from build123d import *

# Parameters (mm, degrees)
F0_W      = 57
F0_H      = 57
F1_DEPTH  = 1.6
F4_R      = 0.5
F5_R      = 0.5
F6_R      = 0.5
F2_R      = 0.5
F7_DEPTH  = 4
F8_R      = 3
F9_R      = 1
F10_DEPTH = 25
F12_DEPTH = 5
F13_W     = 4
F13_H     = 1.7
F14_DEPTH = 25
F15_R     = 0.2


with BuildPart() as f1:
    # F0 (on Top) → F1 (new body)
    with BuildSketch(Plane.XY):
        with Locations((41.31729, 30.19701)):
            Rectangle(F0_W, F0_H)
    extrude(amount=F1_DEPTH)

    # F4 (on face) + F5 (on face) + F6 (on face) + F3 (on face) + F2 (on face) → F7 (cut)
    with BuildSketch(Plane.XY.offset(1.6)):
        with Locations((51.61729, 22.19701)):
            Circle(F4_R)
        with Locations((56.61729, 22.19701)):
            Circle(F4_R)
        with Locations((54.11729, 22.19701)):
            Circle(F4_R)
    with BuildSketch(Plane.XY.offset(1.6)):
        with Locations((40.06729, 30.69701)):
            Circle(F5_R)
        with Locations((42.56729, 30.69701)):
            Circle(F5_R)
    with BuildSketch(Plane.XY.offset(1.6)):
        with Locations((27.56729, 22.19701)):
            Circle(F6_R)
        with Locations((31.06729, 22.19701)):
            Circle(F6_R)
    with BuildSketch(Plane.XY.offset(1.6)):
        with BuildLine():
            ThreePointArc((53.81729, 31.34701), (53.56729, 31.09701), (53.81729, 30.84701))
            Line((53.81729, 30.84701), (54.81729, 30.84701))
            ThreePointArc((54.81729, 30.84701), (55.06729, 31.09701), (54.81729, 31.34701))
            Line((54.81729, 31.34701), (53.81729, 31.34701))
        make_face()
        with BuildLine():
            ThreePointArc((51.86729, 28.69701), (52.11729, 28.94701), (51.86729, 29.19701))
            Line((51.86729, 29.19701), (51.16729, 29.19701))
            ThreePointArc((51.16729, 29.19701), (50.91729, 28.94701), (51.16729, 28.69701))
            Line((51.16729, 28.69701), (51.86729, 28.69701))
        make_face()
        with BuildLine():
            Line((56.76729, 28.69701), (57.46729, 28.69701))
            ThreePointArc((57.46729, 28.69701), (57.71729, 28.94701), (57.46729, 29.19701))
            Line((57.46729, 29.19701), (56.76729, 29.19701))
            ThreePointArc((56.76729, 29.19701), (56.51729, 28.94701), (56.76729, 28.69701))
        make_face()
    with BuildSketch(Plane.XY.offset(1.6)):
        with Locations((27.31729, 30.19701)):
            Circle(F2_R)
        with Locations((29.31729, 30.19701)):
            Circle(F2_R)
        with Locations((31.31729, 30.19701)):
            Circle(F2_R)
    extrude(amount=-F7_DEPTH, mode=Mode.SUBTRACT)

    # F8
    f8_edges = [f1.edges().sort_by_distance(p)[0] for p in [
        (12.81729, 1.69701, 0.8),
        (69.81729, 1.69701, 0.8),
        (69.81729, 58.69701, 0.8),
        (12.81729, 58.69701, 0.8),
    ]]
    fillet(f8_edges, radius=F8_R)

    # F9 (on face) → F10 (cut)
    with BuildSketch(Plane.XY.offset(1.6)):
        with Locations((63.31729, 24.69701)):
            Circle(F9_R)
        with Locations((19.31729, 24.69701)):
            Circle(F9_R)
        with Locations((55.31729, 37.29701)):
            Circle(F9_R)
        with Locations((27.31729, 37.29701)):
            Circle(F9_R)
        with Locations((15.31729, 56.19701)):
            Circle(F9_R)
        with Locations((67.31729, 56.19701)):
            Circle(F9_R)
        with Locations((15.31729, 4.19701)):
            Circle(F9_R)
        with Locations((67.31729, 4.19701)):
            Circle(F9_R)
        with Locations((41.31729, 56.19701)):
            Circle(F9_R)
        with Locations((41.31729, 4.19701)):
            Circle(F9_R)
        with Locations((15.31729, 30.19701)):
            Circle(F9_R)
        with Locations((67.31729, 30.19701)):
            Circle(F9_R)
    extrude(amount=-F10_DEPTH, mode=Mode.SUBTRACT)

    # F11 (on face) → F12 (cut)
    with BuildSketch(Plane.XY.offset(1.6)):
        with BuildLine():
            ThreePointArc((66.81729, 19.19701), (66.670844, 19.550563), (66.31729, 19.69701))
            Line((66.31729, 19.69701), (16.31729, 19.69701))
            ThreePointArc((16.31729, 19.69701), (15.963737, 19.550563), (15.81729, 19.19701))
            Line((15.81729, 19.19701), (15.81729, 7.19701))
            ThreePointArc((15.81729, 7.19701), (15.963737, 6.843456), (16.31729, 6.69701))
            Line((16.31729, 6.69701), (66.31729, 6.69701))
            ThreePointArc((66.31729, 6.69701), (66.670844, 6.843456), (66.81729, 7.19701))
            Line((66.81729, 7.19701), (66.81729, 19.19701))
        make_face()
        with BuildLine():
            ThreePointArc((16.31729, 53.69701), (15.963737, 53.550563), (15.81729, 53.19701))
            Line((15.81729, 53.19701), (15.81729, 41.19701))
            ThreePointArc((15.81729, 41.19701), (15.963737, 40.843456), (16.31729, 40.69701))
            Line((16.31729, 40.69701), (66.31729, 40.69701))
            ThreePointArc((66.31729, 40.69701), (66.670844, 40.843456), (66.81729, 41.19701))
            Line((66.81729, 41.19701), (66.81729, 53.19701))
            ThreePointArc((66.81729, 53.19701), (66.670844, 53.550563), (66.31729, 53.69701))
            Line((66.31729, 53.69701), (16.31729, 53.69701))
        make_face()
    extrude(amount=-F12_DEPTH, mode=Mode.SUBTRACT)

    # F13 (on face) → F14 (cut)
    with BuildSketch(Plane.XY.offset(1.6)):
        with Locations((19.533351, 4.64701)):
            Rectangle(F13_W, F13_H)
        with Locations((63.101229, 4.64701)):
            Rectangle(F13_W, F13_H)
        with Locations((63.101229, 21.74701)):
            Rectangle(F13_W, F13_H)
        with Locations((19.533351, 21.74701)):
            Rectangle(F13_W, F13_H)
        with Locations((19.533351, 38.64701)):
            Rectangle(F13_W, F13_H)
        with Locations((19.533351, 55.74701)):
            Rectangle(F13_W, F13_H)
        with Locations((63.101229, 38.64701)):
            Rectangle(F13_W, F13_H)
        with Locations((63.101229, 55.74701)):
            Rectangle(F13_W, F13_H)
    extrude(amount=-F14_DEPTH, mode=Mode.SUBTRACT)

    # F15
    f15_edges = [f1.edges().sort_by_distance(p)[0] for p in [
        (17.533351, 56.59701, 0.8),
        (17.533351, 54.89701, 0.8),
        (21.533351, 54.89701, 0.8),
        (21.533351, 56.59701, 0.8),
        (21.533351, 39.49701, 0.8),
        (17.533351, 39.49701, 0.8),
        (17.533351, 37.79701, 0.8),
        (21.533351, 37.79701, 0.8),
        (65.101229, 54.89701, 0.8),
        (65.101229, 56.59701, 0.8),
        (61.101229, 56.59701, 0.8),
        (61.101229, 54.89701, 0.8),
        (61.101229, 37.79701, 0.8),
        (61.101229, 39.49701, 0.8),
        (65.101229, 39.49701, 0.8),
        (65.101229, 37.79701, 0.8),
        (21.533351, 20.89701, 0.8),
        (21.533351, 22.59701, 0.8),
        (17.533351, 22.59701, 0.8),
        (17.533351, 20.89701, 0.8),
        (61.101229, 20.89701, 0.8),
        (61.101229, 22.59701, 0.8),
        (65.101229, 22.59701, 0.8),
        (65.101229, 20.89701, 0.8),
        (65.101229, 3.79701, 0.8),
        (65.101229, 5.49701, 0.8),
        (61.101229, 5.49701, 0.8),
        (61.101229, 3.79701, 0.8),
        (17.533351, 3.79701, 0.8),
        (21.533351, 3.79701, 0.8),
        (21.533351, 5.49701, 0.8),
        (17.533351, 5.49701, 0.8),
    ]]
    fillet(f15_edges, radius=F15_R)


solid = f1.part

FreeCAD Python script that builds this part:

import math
import FreeCAD as App
import Part
import Sketcher

V = App.Vector


def edges_at(feature, points):
    """Names of the edges that pass closest to the given points."""
    edges = feature.Shape.Edges
    near = lambda p: min(range(len(edges)), key=lambda i: edges[i].distToShape(Part.Vertex(*p))[0])
    return sorted({f"Edge{near(p) + 1}" for p in points})


def add_polygon(sketch, points):
    """Adds a closed chain of lines whose ends are joined by coincident constraints."""
    first, n = sketch.GeometryCount, len(points)
    for a, b in zip(points, points[1:] + points[:1]):
        sketch.addGeometry(Part.LineSegment(App.Vector(*a, 0), App.Vector(*b, 0)), False)
    for i in range(n):
        sketch.addConstraint(Sketcher.Constraint("Coincident", first + i, 2, first + (i + 1) % n, 1))

doc = App.newDocument("Part")
params = doc.addObject("Spreadsheet::Sheet", "Params")
for row, (alias, value) in enumerate([
    ("sketch1_width", "57 mm"),
    ("pad1_length", "1.6 mm"),
    ("sketch2_diameter", "1 mm"),
    ("sketch2_width", "1 mm"),
    ("sketch2_radius", "0.25 mm"),
    ("sketch2_width2", "0.7 mm"),
    ("pocket1_length", "4 mm"),
    ("fillet_radius", "3 mm"),
    ("sketch3_diameter", "2 mm"),
    ("pocket2_length", "25 mm"),
    ("sketch4_radius", "0.5 mm"),
    ("sketch4_width", "50 mm"),
    ("sketch4_height", "12 mm"),
    ("pocket3_length", "5 mm"),
    ("sketch5_width", "4 mm"),
    ("sketch5_height", "1.7 mm"),
    ("pocket4_length", "25 mm"),
    ("fillet2_radius", "0.2 mm"),
], start=1):
    params.set(f"A{row}", alias)
    params.set(f"B{row}", "=" + value)
    params.setAlias(f"B{row}", alias)

body = doc.addObject("PartDesign::Body", "Body")

# Sketch on XY plane
sketch1 = body.newObject("Sketcher::SketchObject", "Sketch")
sketch1.AttachmentSupport = (doc.getObject("XY_Plane"), [""])
sketch1.MapMode = "FlatFace"
add_polygon(sketch1, [(13, 59), (13, 2), (70, 2), (70, 59)])  # lines 0-3
sketch1.addConstraint([
    Sketcher.Constraint("Vertical", 0),
    Sketcher.Constraint("Horizontal", 1),
    Sketcher.Constraint("Vertical", 2),
    Sketcher.Constraint("Horizontal", 3),
    Sketcher.Constraint("Equal", 3, 0),
    Sketcher.Constraint("DistanceX", 1, 1, 1, 2, 57.0),
    Sketcher.Constraint("DistanceX", -1, 1, 0, 2, 12.81729),
    Sketcher.Constraint("DistanceY", -1, 1, 0, 2, 1.69701),
])
sketch1.setExpression("Constraints[9]", "Params.sketch1_width")
pad1 = body.newObject("PartDesign::Pad", "Pad")
pad1.Profile = sketch1
pad1.setExpression("Length", "Params.pad1_length")

# Sketch on XY plane
sketch2 = body.newObject("Sketcher::SketchObject", "Sketch001")
sketch2.AttachmentSupport = (doc.getObject("XY_Plane"), [""])
sketch2.MapMode = "FlatFace"
sketch2.AttachmentOffset = App.Placement(V(0, 0, 1.6), App.Rotation())
sketch2.addGeometry([
    Part.Circle(V(51.62, 22.2, 0), V(0, 0, 1), 0.5),  # 0
    Part.Circle(V(56.62, 22.2, 0), V(0, 0, 1), 0.5),  # 1
    Part.Circle(V(54.12, 22.2, 0), V(0, 0, 1), 0.5),  # 2
    Part.Circle(V(40.07, 30.7, 0), V(0, 0, 1), 0.5),  # 3
    Part.Circle(V(42.57, 30.7, 0), V(0, 0, 1), 0.5),  # 4
    Part.Circle(V(27.57, 22.2, 0), V(0, 0, 1), 0.5),  # 5
    Part.Circle(V(31.07, 22.2, 0), V(0, 0, 1), 0.5),  # 6
    Part.ArcOfCircle(Part.Circle(V(53.82, 31.1, 0), V(0, 0, 1), 0.25), math.radians(90), math.radians(270)),  # 7
    Part.LineSegment(V(53.82, 30.85, 0), V(54.82, 30.85, 0)),  # 8
    Part.ArcOfCircle(Part.Circle(V(54.82, 31.1, 0), V(0, 0, 1), 0.25), math.radians(-90), math.radians(90)),  # 9
    Part.LineSegment(V(54.82, 31.35, 0), V(53.82, 31.35, 0)),  # 10
    Part.ArcOfCircle(Part.Circle(V(51.87, 28.95, 0), V(0, 0, 1), 0.25), math.radians(-90), math.radians(90)),  # 11
    Part.LineSegment(V(51.87, 29.2, 0), V(51.17, 29.2, 0)),  # 12
    Part.ArcOfCircle(Part.Circle(V(51.17, 28.95, 0), V(0, 0, 1), 0.25), math.radians(90), math.radians(270)),  # 13
    Part.LineSegment(V(51.17, 28.7, 0), V(51.87, 28.7, 0)),  # 14
    Part.LineSegment(V(56.77, 28.7, 0), V(57.47, 28.7, 0)),  # 15
    Part.ArcOfCircle(Part.Circle(V(57.47, 28.95, 0), V(0, 0, 1), 0.25), math.radians(-90), math.radians(90)),  # 16
    Part.LineSegment(V(57.47, 29.2, 0), V(56.77, 29.2, 0)),  # 17
    Part.ArcOfCircle(Part.Circle(V(56.77, 28.95, 0), V(0, 0, 1), 0.25), math.radians(90), math.radians(270)),  # 18
    Part.Circle(V(27.32, 30.2, 0), V(0, 0, 1), 0.5),  # 19
    Part.Circle(V(29.32, 30.2, 0), V(0, 0, 1), 0.5),  # 20
    Part.Circle(V(31.32, 30.2, 0), V(0, 0, 1), 0.5),  # 21
], False)
sketch2.addConstraint([
    Sketcher.Constraint("Tangent", 7, 2, 8, 1),
    Sketcher.Constraint("Tangent", 8, 2, 9, 1),
    Sketcher.Constraint("Tangent", 9, 2, 10, 1),
    Sketcher.Constraint("Tangent", 10, 2, 7, 1),
    Sketcher.Constraint("Tangent", 11, 2, 12, 1),
    Sketcher.Constraint("Tangent", 12, 2, 13, 1),
    Sketcher.Constraint("Tangent", 13, 2, 14, 1),
    Sketcher.Constraint("Tangent", 14, 2, 11, 1),
    Sketcher.Constraint("Tangent", 15, 2, 16, 1),
    Sketcher.Constraint("Tangent", 16, 2, 17, 1),
    Sketcher.Constraint("Tangent", 17, 2, 18, 1),
    Sketcher.Constraint("Tangent", 18, 2, 15, 1),
    Sketcher.Constraint("Horizontal", 8),
    Sketcher.Constraint("Horizontal", 10),
    Sketcher.Constraint("Horizontal", 12),
    Sketcher.Constraint("Horizontal", 14),
    Sketcher.Constraint("Horizontal", 15),
    Sketcher.Constraint("Horizontal", 17),
    Sketcher.Constraint("Equal", 0, 1),
    Sketcher.Constraint("Equal", 1, 2),
    Sketcher.Constraint("Equal", 2, 3),
    Sketcher.Constraint("Equal", 3, 4),
    Sketcher.Constraint("Equal", 4, 5),
    Sketcher.Constraint("Equal", 5, 6),
    Sketcher.Constraint("Equal", 9, 11),
    Sketcher.Constraint("Equal", 13, 16),
    Sketcher.Constraint("Equal", 6, 19),
    Sketcher.Constraint("Equal", 19, 20),
    Sketcher.Constraint("Equal", 20, 21),
    Sketcher.Constraint("Horizontal", 0, 3, 1, 3),
    Sketcher.Constraint("Horizontal", 1, 3, 2, 3),
    Sketcher.Constraint("Horizontal", 3, 3, 4, 3),
    Sketcher.Constraint("Horizontal", 2, 3, 5, 3),
    Sketcher.Constraint("Horizontal", 5, 3, 6, 3),
    Sketcher.Constraint("Horizontal", 13, 3, 16, 3),
    Sketcher.Constraint("Horizontal", 19, 3, 20, 3),
    Sketcher.Constraint("Horizontal", 20, 3, 21, 3),
    Sketcher.Constraint("Equal", 14, 15),
    Sketcher.Constraint("Diameter", 0, 1.0),
    Sketcher.Constraint("DistanceX", 8, 1, 8, 2, 1.0),
    Sketcher.Constraint("Radius", 7, 0.25),
    Sketcher.Constraint("DistanceX", 12, 2, 12, 1, 0.7),
    Sketcher.Constraint("DistanceX", 0, 3, 1, 3, 5.0),
    Sketcher.Constraint("DistanceX", 5, 3, 4, 3, 15.0),
    Sketcher.Constraint("DistanceX", 6, 3, 3, 3, 9.0),
    Sketcher.Constraint("DistanceY", 5, 3, 19, 3, 8.0),
    Sketcher.Constraint("DistanceX", 19, 3, 20, 3, 2.0),
    Sketcher.Constraint("DistanceX", 20, 3, 21, 3, 2.0),
    Sketcher.Constraint("DistanceX", 0, 3, 2, 3, 2.5),
    Sketcher.Constraint("DistanceY", 0, 3, 3, 3, 8.5),
    Sketcher.Constraint("DistanceX", 3, 3, 4, 3, 2.5),
    Sketcher.Constraint("DistanceX", 7, 3, 2, 3, 0.3),
    Sketcher.Constraint("DistanceY", 2, 3, 7, 3, 8.9),
    Sketcher.Constraint("DistanceX", 11, 3, 16, 3, 5.6),
    Sketcher.Constraint("DistanceY", 11, 3, 7, 2, 1.9),
    Sketcher.Constraint("DistanceX", 3, 3, 0, 3, 11.55),
    Sketcher.Constraint("DistanceX", 11, 3, 7, 3, 1.95),
    Sketcher.Constraint("DistanceX", 19, 3, 5, 3, 0.25),
    Sketcher.Constraint("DistanceX", -1, 1, 0, 3, 51.61729),
    Sketcher.Constraint("DistanceY", -1, 1, 0, 3, 22.19701),
])
sketch2.setExpression("Constraints[38]", "Params.sketch2_diameter")
sketch2.setExpression("Constraints[39]", "Params.sketch2_width")
sketch2.setExpression("Constraints[40]", "Params.sketch2_radius")
sketch2.setExpression("Constraints[41]", "Params.sketch2_width2")
pocket1 = body.newObject("PartDesign::Pocket", "Pocket")
pocket1.Profile = sketch2
pocket1.setExpression("Length", "Params.pocket1_length")
doc.recompute()

fillet = body.newObject("PartDesign::Fillet", "Fillet")
fillet.Base = (pocket1, edges_at(pocket1, [
    (12.817, 1.697, 0.8),
    (69.817, 1.697, 0.8),
    (69.817, 58.697, 0.8),
    (12.817, 58.697, 0.8),
]))
fillet.setExpression("Radius", "Params.fillet_radius")

# Sketch on XY plane
sketch3 = body.newObject("Sketcher::SketchObject", "Sketch002")
sketch3.AttachmentSupport = (doc.getObject("XY_Plane"), [""])
sketch3.MapMode = "FlatFace"
sketch3.AttachmentOffset = App.Placement(V(0, 0, 1.6), App.Rotation())
sketch3.addGeometry([
    Part.Circle(V(63.3, 24.7, 0), V(0, 0, 1), 1),  # 0
    Part.Circle(V(19.3, 24.7, 0), V(0, 0, 1), 1),  # 1
    Part.Circle(V(55.3, 37.3, 0), V(0, 0, 1), 1),  # 2
    Part.Circle(V(27.3, 37.3, 0), V(0, 0, 1), 1),  # 3
    Part.Circle(V(15.3, 56.2, 0), V(0, 0, 1), 1),  # 4
    Part.Circle(V(67.3, 56.2, 0), V(0, 0, 1), 1),  # 5
    Part.Circle(V(15.3, 4.2, 0), V(0, 0, 1), 1),  # 6
    Part.Circle(V(67.3, 4.2, 0), V(0, 0, 1), 1),  # 7
    Part.Circle(V(41.3, 56.2, 0), V(0, 0, 1), 1),  # 8
    Part.Circle(V(41.3, 4.2, 0), V(0, 0, 1), 1),  # 9
    Part.Circle(V(15.3, 30.2, 0), V(0, 0, 1), 1),  # 10
    Part.Circle(V(67.3, 30.2, 0), V(0, 0, 1), 1),  # 11
], False)
sketch3.addConstraint([
    Sketcher.Constraint("Equal", 0, 1),
    Sketcher.Constraint("Equal", 1, 2),
    Sketcher.Constraint("Equal", 2, 3),
    Sketcher.Constraint("Equal", 3, 4),
    Sketcher.Constraint("Equal", 4, 5),
    Sketcher.Constraint("Equal", 5, 6),
    Sketcher.Constraint("Equal", 6, 7),
    Sketcher.Constraint("Equal", 7, 8),
    Sketcher.Constraint("Equal", 8, 9),
    Sketcher.Constraint("Equal", 9, 10),
    Sketcher.Constraint("Equal", 10, 11),
    Sketcher.Constraint("Horizontal", 0, 3, 1, 3),
    Sketcher.Constraint("Horizontal", 2, 3, 3, 3),
    Sketcher.Constraint("Horizontal", 4, 3, 5, 3),
    Sketcher.Constraint("Horizontal", 6, 3, 7, 3),
    Sketcher.Constraint("Horizontal", 5, 3, 8, 3),
    Sketcher.Constraint("Horizontal", 7, 3, 9, 3),
    Sketcher.Constraint("Horizontal", 10, 3, 11, 3),
    Sketcher.Constraint("Vertical", 4, 3, 6, 3),
    Sketcher.Constraint("Vertical", 5, 3, 7, 3),
    Sketcher.Constraint("Vertical", 8, 3, 9, 3),
    Sketcher.Constraint("Vertical", 6, 3, 10, 3),
    Sketcher.Constraint("Vertical", 7, 3, 11, 3),
    Sketcher.Constraint("Diameter", 0, 2.0),
    Sketcher.Constraint("DistanceX", 1, 3, 0, 3, 44.0),
    Sketcher.Constraint("DistanceX", 2, 3, 0, 3, 8.0),
    Sketcher.Constraint("DistanceX", 1, 3, 3, 3, 8.0),
    Sketcher.Constraint("DistanceX", 4, 3, 3, 3, 12.0),
    Sketcher.Constraint("DistanceX", 2, 3, 5, 3, 12.0),
    Sketcher.Constraint("DistanceY", 6, 3, 4, 3, 52.0),
    Sketcher.Constraint("DistanceX", 8, 3, 2, 3, 14.0),
    Sketcher.Constraint("DistanceY", 10, 3, 4, 3, 26.0),
    Sketcher.Constraint("DistanceY", 0, 3, 2, 3, 12.6),
    Sketcher.Constraint("DistanceY", 3, 3, 4, 3, 18.9),
    Sketcher.Constraint("DistanceX", -1, 1, 0, 3, 63.31729),
    Sketcher.Constraint("DistanceY", -1, 1, 0, 3, 24.69701),
])
sketch3.setExpression("Constraints[23]", "Params.sketch3_diameter")
pocket2 = body.newObject("PartDesign::Pocket", "Pocket001")
pocket2.Profile = sketch3
pocket2.setExpression("Length", "Params.pocket2_length")

# Sketch on XY plane
sketch4 = body.newObject("Sketcher::SketchObject", "Sketch003")
sketch4.AttachmentSupport = (doc.getObject("XY_Plane"), [""])
sketch4.MapMode = "FlatFace"
sketch4.AttachmentOffset = App.Placement(V(0, 0, 1.6), App.Rotation())
sketch4.addGeometry([
    Part.ArcOfCircle(Part.Circle(V(66.32, 19.2, 0), V(0, 0, 1), 0.5), math.radians(0), math.radians(90)),  # 0
    Part.LineSegment(V(66.32, 19.7, 0), V(16.32, 19.7, 0)),  # 1
    Part.ArcOfCircle(Part.Circle(V(16.32, 19.2, 0), V(0, 0, 1), 0.5), math.radians(90), math.radians(180)),  # 2
    Part.LineSegment(V(15.82, 19.2, 0), V(15.82, 7.2, 0)),  # 3
    Part.ArcOfCircle(Part.Circle(V(16.32, 7.2, 0), V(0, 0, 1), 0.5), math.radians(180), math.radians(270)),  # 4
    Part.LineSegment(V(16.32, 6.7, 0), V(66.32, 6.7, 0)),  # 5
    Part.ArcOfCircle(Part.Circle(V(66.32, 7.2, 0), V(0, 0, 1), 0.5), math.radians(-90), math.radians(0)),  # 6
    Part.LineSegment(V(66.82, 7.2, 0), V(66.82, 19.2, 0)),  # 7
    Part.ArcOfCircle(Part.Circle(V(16.32, 53.2, 0), V(0, 0, 1), 0.5), math.radians(90), math.radians(180)),  # 8
    Part.LineSegment(V(15.82, 53.2, 0), V(15.82, 41.2, 0)),  # 9
    Part.ArcOfCircle(Part.Circle(V(16.32, 41.2, 0), V(0, 0, 1), 0.5), math.radians(180), math.radians(270)),  # 10
    Part.LineSegment(V(16.32, 40.7, 0), V(66.32, 40.7, 0)),  # 11
    Part.ArcOfCircle(Part.Circle(V(66.32, 41.2, 0), V(0, 0, 1), 0.5), math.radians(-90), math.radians(0)),  # 12
    Part.LineSegment(V(66.82, 41.2, 0), V(66.82, 53.2, 0)),  # 13
    Part.ArcOfCircle(Part.Circle(V(66.32, 53.2, 0), V(0, 0, 1), 0.5), math.radians(0), math.radians(90)),  # 14
    Part.LineSegment(V(66.32, 53.7, 0), V(16.32, 53.7, 0)),  # 15
], False)
sketch4.addConstraint([
    Sketcher.Constraint("Tangent", 0, 2, 1, 1),
    Sketcher.Constraint("Coincident", 1, 2, 2, 1),
    Sketcher.Constraint("Coincident", 2, 2, 3, 1),
    Sketcher.Constraint("Tangent", 3, 2, 4, 1),
    Sketcher.Constraint("Tangent", 4, 2, 5, 1),
    Sketcher.Constraint("Coincident", 5, 2, 6, 1),
    Sketcher.Constraint("Coincident", 6, 2, 7, 1),
    Sketcher.Constraint("Tangent", 7, 2, 0, 1),
    Sketcher.Constraint("Coincident", 8, 2, 9, 1),
    Sketcher.Constraint("Tangent", 9, 2, 10, 1),
    Sketcher.Constraint("Tangent", 10, 2, 11, 1),
    Sketcher.Constraint("Coincident", 11, 2, 12, 1),
    Sketcher.Constraint("Coincident", 12, 2, 13, 1),
    Sketcher.Constraint("Tangent", 13, 2, 14, 1),
    Sketcher.Constraint("Tangent", 14, 2, 15, 1),
    Sketcher.Constraint("Coincident", 15, 2, 8, 1),
    Sketcher.Constraint("Horizontal", 1),
    Sketcher.Constraint("Vertical", 3),
    Sketcher.Constraint("Horizontal", 5),
    Sketcher.Constraint("Vertical", 7),
    Sketcher.Constraint("Vertical", 9),
    Sketcher.Constraint("Horizontal", 11),
    Sketcher.Constraint("Vertical", 13),
    Sketcher.Constraint("Horizontal", 15),
    Sketcher.Constraint("Equal", 0, 2),
    Sketcher.Constraint("Equal", 2, 4),
    Sketcher.Constraint("Equal", 4, 6),
    Sketcher.Constraint("Equal", 4, 8),
    Sketcher.Constraint("Equal", 8, 10),
    Sketcher.Constraint("Equal", 10, 12),
    Sketcher.Constraint("Equal", 12, 14),
    Sketcher.Constraint("Horizontal", 0, 3, 2, 2),
    Sketcher.Constraint("Horizontal", 3, 2, 6, 2),
    Sketcher.Constraint("Horizontal", 14, 3, 8, 2),
    Sketcher.Constraint("Horizontal", 9, 2, 12, 2),
    Sketcher.Constraint("Vertical", 4, 3, 8, 3),
    Sketcher.Constraint("Vertical", 6, 3, 12, 3),
    Sketcher.Constraint("Vertical", 10, 3, 1, 2),
    Sketcher.Constraint("Vertical", 0, 2, 5, 2),
    Sketcher.Constraint("Vertical", 5, 2, 11, 2),
    Sketcher.Constraint("Vertical", 10, 2, 15, 2),
    Sketcher.Constraint("Equal", 7, 9),
    Sketcher.Constraint("Radius", 0, 0.5),
    Sketcher.Constraint("DistanceX", 1, 2, 1, 1, 50.0),
    Sketcher.Constraint("DistanceY", 3, 2, 3, 1, 12.0),
    Sketcher.Constraint("DistanceY", 2, 3, 8, 3, 34.0),
    Sketcher.Constraint("DistanceX", -1, 1, 0, 3, 66.31729),
    Sketcher.Constraint("DistanceY", -1, 1, 0, 3, 19.19701),
])
sketch4.setExpression("Constraints[42]", "Params.sketch4_radius")
sketch4.setExpression("Constraints[43]", "Params.sketch4_width")
sketch4.setExpression("Constraints[44]", "Params.sketch4_height")
pocket3 = body.newObject("PartDesign::Pocket", "Pocket002")
pocket3.Profile = sketch4
pocket3.setExpression("Length", "Params.pocket3_length")

# Sketch on XY plane
sketch5 = body.newObject("Sketcher::SketchObject", "Sketch004")
sketch5.AttachmentSupport = (doc.getObject("XY_Plane"), [""])
sketch5.MapMode = "FlatFace"
sketch5.AttachmentOffset = App.Placement(V(0, 0, 1.6), App.Rotation())
add_polygon(sketch5, [(17.5, 5.5), (17.5, 3.8), (21.5, 3.8), (21.5, 5.5)])  # lines 0-3
add_polygon(sketch5, [(61.1, 5.5), (61.1, 3.8), (65.1, 3.8), (65.1, 5.5)])  # lines 4-7
add_polygon(sketch5, [(61.1, 22.6), (61.1, 20.9), (65.1, 20.9), (65.1, 22.6)])  # lines 8-11
add_polygon(sketch5, [(17.5, 22.6), (17.5, 20.9), (21.5, 20.9), (21.5, 22.6)])  # lines 12-15
add_polygon(sketch5, [(17.5, 39.5), (17.5, 37.8), (21.5, 37.8), (21.5, 39.5)])  # lines 16-19
add_polygon(sketch5, [(17.5, 56.6), (17.5, 54.9), (21.5, 54.9), (21.5, 56.6)])  # lines 20-23
add_polygon(sketch5, [(61.1, 39.5), (61.1, 37.8), (65.1, 37.8), (65.1, 39.5)])  # lines 24-27
add_polygon(sketch5, [(61.1, 56.6), (61.1, 54.9), (65.1, 54.9), (65.1, 56.6)])  # lines 28-31
sketch5.addConstraint([
    Sketcher.Constraint("Vertical", 0),
    Sketcher.Constraint("Horizontal", 1),
    Sketcher.Constraint("Vertical", 2),
    Sketcher.Constraint("Horizontal", 3),
    Sketcher.Constraint("Vertical", 4),
    Sketcher.Constraint("Horizontal", 5),
    Sketcher.Constraint("Vertical", 6),
    Sketcher.Constraint("Horizontal", 7),
    Sketcher.Constraint("Vertical", 8),
    Sketcher.Constraint("Horizontal", 9),
    Sketcher.Constraint("Vertical", 10),
    Sketcher.Constraint("Horizontal", 11),
    Sketcher.Constraint("Vertical", 12),
    Sketcher.Constraint("Horizontal", 13),
    Sketcher.Constraint("Vertical", 14),
    Sketcher.Constraint("Horizontal", 15),
    Sketcher.Constraint("Vertical", 16),
    Sketcher.Constraint("Horizontal", 17),
    Sketcher.Constraint("Vertical", 18),
    Sketcher.Constraint("Horizontal", 19),
    Sketcher.Constraint("Vertical", 20),
    Sketcher.Constraint("Horizontal", 21),
    Sketcher.Constraint("Vertical", 22),
    Sketcher.Constraint("Horizontal", 23),
    Sketcher.Constraint("Vertical", 24),
    Sketcher.Constraint("Horizontal", 25),
    Sketcher.Constraint("Vertical", 26),
    Sketcher.Constraint("Horizontal", 27),
    Sketcher.Constraint("Vertical", 28),
    Sketcher.Constraint("Horizontal", 29),
    Sketcher.Constraint("Vertical", 30),
    Sketcher.Constraint("Horizontal", 31),
    Sketcher.Constraint("Horizontal", 1, 2, 4, 2),
    Sketcher.Constraint("Horizontal", 3, 2, 6, 2),
    Sketcher.Constraint("Horizontal", 9, 2, 12, 2),
    Sketcher.Constraint("Horizontal", 11, 2, 14, 2),
    Sketcher.Constraint("Horizontal", 17, 2, 24, 2),
    Sketcher.Constraint("Horizontal", 19, 2, 26, 2),
    Sketcher.Constraint("Horizontal", 21, 2, 28, 2),
    Sketcher.Constraint("Horizontal", 23, 2, 30, 2),
    Sketcher.Constraint("Vertical", 7, 2, 8, 2),
    Sketcher.Constraint("Vertical", 6, 2, 9, 2),
    Sketcher.Constraint("Vertical", 3, 2, 12, 2),
    Sketcher.Constraint("Vertical", 2, 2, 13, 2),
    Sketcher.Constraint("Vertical", 15, 2, 16, 2),
    Sketcher.Constraint("Vertical", 14, 2, 17, 2),
    Sketcher.Constraint("Vertical", 19, 2, 20, 2),
    Sketcher.Constraint("Vertical", 18, 2, 21, 2),
    Sketcher.Constraint("Vertical", 11, 2, 24, 2),
    Sketcher.Constraint("Vertical", 10, 2, 25, 2),
    Sketcher.Constraint("Vertical", 27, 2, 28, 2),
    Sketcher.Constraint("Vertical", 26, 2, 29, 2),
    Sketcher.Constraint("Equal", 3, 5),
    Sketcher.Constraint("Equal", 6, 8),
    Sketcher.Constraint("Equal", 14, 16),
    Sketcher.Constraint("Equal", 18, 20),
    Sketcher.Constraint("DistanceX", 1, 1, 1, 2, 4.0),
    Sketcher.Constraint("DistanceY", 0, 2, 0, 1, 1.7),
    Sketcher.Constraint("DistanceY", 7, 2, 8, 2, 15.4),
    Sketcher.Constraint("DistanceY", 15, 2, 16, 2, 15.2),
    Sketcher.Constraint("DistanceY", 19, 2, 20, 2, 15.4),
    Sketcher.Constraint("DistanceX", -1, 1, 0, 2, 17.533351),
    Sketcher.Constraint("DistanceY", -1, 1, 0, 2, 3.79701),
    Sketcher.Constraint("DistanceX", -1, 1, 4, 2, 61.101229),
])
sketch5.setExpression("Constraints[88]", "Params.sketch5_width")
sketch5.setExpression("Constraints[89]", "Params.sketch5_height")
pocket4 = body.newObject("PartDesign::Pocket", "Pocket003")
pocket4.Profile = sketch5
pocket4.setExpression("Length", "Params.pocket4_length")
doc.recompute()

fillet2 = body.newObject("PartDesign::Fillet", "Fillet001")
fillet2.Base = (pocket4, edges_at(pocket4, [
    (17.533, 56.597, 0.8),
    (17.533, 54.897, 0.8),
    (21.533, 54.897, 0.8),
    (21.533, 56.597, 0.8),
    (21.533, 39.497, 0.8),
    (17.533, 39.497, 0.8),
    (17.533, 37.797, 0.8),
    (21.533, 37.797, 0.8),
    (65.101, 54.897, 0.8),
    (65.101, 56.597, 0.8),
    (61.101, 56.597, 0.8),
    (61.101, 54.897, 0.8),
    (61.101, 37.797, 0.8),
    (61.101, 39.497, 0.8),
    (65.101, 39.497, 0.8),
    (65.101, 37.797, 0.8),
    (21.533, 20.897, 0.8),
    (21.533, 22.597, 0.8),
    (17.533, 22.597, 0.8),
    (17.533, 20.897, 0.8),
    (61.101, 20.897, 0.8),
    (61.101, 22.597, 0.8),
    (65.101, 22.597, 0.8),
    (65.101, 20.897, 0.8),
    (65.101, 3.797, 0.8),
    (65.101, 5.497, 0.8),
    (61.101, 5.497, 0.8),
    (61.101, 3.797, 0.8),
    (17.533, 3.797, 0.8),
    (21.533, 3.797, 0.8),
    (21.533, 5.497, 0.8),
    (17.533, 5.497, 0.8),
]))
fillet2.setExpression("Radius", "Params.fillet2_radius")

doc.recompute()
